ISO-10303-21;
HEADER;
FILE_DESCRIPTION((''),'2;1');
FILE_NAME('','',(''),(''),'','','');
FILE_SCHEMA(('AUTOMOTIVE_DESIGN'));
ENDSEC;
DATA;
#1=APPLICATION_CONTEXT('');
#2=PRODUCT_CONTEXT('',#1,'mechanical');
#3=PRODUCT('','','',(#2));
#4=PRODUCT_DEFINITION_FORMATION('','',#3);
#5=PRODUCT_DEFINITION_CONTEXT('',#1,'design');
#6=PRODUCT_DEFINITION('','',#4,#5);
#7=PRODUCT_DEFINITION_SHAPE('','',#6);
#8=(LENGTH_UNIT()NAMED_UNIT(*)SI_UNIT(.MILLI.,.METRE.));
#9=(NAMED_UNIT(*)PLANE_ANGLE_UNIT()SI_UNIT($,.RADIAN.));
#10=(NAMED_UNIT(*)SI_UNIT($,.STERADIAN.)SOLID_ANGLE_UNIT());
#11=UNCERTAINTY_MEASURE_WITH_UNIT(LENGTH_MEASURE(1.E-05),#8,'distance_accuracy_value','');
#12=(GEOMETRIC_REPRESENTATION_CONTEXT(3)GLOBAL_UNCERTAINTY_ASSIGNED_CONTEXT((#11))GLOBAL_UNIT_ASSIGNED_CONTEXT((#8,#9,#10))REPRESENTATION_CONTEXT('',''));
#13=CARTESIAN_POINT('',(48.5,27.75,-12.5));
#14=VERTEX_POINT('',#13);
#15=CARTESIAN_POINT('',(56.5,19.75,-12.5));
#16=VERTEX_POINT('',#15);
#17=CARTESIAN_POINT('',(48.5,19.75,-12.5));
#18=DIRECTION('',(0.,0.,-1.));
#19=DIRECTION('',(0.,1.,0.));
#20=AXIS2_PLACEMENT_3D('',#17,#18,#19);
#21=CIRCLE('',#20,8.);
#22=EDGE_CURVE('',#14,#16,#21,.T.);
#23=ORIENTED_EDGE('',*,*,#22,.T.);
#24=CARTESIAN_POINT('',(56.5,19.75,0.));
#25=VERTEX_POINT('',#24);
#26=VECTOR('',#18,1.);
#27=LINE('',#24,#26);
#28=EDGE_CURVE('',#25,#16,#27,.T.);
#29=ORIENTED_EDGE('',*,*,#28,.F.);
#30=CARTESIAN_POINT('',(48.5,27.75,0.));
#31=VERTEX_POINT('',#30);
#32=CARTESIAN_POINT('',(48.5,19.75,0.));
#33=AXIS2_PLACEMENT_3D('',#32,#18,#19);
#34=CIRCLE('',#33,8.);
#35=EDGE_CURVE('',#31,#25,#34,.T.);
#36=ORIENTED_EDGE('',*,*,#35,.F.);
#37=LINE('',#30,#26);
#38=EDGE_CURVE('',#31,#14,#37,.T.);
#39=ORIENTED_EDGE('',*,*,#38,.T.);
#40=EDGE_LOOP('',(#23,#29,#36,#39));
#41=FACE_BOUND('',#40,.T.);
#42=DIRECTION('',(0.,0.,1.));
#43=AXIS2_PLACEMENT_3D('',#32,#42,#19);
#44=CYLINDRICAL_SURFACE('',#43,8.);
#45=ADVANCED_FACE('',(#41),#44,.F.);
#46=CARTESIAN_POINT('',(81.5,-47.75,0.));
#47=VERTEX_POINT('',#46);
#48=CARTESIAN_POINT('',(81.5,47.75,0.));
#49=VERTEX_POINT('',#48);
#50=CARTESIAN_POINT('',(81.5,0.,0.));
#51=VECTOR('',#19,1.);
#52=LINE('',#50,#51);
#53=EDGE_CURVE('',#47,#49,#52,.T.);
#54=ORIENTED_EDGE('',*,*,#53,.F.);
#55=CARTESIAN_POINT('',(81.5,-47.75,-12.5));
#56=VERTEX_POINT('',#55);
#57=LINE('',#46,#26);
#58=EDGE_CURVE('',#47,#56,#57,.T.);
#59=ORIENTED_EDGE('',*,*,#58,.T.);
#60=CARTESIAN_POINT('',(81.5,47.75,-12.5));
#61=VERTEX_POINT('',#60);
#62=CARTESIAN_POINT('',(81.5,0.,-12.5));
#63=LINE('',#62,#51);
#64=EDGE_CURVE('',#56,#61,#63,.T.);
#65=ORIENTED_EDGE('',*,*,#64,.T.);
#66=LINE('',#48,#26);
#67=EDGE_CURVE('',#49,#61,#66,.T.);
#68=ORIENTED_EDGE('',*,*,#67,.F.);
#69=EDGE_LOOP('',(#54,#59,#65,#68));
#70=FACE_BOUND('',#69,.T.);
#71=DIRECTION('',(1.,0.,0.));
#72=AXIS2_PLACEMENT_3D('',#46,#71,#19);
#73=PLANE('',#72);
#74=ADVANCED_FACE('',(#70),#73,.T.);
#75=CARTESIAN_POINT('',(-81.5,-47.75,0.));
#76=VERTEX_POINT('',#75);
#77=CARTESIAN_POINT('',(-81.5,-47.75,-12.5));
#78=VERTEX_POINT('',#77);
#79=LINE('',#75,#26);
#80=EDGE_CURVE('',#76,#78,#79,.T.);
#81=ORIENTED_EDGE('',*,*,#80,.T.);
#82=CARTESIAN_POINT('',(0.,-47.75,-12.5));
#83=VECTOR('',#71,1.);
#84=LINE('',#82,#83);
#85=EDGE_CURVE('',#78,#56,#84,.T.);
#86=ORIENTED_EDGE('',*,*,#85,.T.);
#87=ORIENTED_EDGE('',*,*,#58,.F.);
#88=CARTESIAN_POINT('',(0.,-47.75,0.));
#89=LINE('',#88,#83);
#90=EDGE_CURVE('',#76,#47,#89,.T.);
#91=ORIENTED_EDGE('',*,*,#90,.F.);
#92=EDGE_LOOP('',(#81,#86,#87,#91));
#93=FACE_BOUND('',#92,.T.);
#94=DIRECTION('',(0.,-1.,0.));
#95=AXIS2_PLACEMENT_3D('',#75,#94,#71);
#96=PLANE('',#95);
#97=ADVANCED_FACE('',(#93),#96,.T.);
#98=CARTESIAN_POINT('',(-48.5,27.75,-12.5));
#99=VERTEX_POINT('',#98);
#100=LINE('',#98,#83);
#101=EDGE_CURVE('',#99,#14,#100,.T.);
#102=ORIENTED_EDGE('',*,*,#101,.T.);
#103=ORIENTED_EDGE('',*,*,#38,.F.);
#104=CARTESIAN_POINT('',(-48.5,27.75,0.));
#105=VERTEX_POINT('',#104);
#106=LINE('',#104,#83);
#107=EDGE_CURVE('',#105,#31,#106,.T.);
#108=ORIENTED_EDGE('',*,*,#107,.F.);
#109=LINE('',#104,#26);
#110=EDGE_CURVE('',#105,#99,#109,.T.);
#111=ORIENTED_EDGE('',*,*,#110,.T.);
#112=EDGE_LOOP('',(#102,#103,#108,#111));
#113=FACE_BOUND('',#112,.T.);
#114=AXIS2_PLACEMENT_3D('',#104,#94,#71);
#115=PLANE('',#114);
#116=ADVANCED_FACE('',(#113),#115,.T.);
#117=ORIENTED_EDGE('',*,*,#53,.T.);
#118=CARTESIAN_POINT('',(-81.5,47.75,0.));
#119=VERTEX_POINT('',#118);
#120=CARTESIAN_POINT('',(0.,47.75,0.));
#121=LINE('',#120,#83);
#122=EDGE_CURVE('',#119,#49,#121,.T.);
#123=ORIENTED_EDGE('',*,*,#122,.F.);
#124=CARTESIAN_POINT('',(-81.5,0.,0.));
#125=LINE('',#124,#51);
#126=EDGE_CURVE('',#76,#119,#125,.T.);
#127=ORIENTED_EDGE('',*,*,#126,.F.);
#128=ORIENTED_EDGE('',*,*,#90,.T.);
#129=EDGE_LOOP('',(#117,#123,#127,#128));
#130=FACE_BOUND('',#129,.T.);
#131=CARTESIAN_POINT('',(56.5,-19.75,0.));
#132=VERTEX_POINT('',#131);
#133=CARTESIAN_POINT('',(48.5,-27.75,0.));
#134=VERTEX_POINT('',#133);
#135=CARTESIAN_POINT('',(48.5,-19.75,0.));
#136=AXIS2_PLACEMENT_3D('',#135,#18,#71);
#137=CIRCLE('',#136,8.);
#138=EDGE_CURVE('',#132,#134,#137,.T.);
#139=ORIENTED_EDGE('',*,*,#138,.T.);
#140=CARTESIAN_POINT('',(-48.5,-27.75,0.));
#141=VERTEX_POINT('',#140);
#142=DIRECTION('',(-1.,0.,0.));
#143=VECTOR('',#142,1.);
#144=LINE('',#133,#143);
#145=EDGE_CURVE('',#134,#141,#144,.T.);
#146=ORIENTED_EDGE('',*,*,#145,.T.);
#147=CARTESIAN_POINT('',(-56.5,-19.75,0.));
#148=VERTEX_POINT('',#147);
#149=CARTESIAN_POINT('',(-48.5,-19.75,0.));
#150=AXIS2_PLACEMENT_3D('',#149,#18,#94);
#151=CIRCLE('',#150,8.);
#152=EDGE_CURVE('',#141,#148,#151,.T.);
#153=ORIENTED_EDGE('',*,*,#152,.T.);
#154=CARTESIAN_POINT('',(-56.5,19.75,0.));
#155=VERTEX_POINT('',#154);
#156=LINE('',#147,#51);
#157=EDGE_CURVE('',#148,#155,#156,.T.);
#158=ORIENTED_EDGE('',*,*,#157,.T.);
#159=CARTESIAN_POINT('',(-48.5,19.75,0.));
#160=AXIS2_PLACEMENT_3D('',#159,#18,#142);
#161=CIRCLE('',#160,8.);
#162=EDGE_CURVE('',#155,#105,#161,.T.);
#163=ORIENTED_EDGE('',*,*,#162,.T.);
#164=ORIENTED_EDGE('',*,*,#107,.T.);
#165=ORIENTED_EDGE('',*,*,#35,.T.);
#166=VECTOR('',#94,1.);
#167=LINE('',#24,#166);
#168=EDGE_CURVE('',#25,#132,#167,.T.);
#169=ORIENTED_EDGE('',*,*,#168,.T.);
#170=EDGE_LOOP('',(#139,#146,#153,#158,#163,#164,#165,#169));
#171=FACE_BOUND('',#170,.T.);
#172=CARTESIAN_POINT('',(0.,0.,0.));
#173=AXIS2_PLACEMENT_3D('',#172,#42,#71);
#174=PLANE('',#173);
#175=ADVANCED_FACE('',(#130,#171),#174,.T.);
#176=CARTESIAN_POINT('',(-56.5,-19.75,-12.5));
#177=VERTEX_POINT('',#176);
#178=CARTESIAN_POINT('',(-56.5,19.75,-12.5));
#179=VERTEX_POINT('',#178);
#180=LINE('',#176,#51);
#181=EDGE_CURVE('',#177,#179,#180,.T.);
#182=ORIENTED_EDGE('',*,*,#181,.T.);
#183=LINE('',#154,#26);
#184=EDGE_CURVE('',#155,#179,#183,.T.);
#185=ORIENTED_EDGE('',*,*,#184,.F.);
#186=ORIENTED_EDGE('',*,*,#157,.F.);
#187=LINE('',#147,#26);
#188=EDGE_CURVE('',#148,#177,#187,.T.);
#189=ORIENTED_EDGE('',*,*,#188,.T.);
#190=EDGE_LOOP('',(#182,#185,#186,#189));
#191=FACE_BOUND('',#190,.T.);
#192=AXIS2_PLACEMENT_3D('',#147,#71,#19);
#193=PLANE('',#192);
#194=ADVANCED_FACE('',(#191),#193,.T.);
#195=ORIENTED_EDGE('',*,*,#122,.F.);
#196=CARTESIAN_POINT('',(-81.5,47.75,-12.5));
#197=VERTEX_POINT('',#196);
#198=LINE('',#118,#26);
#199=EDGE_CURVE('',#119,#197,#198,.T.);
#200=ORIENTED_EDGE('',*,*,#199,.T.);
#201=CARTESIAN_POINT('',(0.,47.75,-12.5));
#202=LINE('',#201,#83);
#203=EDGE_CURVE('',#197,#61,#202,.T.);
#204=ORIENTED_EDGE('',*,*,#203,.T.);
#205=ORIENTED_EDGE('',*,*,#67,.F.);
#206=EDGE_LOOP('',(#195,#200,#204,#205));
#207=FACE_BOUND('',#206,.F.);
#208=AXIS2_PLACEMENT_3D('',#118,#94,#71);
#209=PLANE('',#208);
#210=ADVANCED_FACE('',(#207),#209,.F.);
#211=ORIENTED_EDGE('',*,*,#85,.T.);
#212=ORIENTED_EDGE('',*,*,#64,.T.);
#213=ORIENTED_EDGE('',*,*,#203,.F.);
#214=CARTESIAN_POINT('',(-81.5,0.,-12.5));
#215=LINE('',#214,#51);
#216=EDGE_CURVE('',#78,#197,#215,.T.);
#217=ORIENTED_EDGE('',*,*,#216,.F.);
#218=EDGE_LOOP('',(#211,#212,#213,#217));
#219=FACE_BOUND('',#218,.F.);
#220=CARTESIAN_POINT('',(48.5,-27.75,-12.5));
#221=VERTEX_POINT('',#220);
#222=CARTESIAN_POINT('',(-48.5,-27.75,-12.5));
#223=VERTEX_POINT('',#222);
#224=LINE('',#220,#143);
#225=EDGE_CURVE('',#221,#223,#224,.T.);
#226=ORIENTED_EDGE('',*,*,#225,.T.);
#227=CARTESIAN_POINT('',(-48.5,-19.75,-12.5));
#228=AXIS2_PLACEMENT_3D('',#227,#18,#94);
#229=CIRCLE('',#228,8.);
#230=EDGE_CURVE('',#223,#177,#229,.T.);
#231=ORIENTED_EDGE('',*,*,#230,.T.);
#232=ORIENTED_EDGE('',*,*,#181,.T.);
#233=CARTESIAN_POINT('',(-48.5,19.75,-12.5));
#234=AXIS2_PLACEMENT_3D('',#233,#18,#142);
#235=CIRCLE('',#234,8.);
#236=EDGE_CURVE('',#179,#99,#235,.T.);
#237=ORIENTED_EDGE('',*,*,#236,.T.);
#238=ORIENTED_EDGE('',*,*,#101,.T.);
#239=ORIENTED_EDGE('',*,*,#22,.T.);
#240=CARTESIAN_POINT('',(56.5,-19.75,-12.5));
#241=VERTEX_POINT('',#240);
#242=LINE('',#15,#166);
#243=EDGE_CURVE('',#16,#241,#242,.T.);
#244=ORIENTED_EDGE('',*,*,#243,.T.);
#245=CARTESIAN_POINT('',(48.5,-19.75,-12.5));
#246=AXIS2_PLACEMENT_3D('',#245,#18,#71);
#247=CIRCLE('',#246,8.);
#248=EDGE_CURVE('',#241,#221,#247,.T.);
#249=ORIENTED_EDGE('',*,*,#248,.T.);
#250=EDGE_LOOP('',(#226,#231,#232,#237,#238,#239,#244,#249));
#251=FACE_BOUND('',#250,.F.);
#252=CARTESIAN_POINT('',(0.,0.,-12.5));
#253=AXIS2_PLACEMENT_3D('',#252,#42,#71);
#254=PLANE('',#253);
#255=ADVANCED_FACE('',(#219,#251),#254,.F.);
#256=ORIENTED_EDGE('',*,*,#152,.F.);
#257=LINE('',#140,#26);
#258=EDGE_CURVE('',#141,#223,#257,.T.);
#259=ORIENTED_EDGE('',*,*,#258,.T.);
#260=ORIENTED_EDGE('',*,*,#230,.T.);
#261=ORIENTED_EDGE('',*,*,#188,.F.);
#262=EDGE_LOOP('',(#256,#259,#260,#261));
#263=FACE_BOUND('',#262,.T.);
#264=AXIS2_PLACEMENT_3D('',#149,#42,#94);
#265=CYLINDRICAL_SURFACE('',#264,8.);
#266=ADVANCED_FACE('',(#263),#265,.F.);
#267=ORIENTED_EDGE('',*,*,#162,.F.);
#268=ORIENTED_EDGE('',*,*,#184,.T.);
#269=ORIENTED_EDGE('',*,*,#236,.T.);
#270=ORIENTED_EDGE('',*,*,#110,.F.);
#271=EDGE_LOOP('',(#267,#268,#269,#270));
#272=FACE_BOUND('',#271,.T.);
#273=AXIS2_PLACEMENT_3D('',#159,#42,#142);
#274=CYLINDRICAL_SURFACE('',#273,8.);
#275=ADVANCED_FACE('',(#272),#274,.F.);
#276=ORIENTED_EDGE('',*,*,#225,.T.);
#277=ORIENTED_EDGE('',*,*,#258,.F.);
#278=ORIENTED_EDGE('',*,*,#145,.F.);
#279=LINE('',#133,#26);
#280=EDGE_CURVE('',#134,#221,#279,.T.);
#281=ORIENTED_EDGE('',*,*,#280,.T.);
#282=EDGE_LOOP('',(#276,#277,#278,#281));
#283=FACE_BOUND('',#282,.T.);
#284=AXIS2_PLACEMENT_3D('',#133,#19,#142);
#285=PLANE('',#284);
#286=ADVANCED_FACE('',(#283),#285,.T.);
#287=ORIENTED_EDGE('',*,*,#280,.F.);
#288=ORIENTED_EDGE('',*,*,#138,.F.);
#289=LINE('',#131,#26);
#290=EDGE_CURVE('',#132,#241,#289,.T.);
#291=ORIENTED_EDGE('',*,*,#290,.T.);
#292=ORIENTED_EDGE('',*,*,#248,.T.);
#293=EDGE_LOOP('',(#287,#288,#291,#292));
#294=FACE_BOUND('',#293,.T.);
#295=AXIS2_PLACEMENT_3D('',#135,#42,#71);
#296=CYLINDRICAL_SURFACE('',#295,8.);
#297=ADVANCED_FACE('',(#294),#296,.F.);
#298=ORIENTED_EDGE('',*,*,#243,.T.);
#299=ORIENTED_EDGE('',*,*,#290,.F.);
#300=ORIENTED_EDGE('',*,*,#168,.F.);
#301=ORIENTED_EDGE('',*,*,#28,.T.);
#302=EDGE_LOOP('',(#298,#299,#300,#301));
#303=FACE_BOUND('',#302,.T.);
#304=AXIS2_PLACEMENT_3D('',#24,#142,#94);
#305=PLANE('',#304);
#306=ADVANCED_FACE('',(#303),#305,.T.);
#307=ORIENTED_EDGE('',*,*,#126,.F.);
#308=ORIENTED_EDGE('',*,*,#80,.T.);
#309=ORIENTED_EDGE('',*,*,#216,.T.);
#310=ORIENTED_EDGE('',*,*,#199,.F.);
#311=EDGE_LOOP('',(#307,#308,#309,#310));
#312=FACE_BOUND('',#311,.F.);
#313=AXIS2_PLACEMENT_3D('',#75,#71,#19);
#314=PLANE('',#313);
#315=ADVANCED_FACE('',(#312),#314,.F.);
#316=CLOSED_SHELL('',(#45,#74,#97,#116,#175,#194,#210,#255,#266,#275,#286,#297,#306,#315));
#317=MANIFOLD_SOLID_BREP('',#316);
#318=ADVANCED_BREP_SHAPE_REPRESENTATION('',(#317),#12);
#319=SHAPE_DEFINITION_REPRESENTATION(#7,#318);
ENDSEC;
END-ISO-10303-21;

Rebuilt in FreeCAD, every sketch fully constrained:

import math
import FreeCAD as App
import Part
import Sketcher
Q = App.Units.Quantity

doc = App.newDocument("Part")
body = doc.addObject("PartDesign::Body", "Body")

# Sketch on XY plane
sketch1 = body.newObject("Sketcher::SketchObject", "Sketch")
sketch1.AttachmentSupport = (doc.getObject("XY_Plane"), [""])
sketch1.MapMode = "FlatFace"
sketch1.addGeometry(Part.LineSegment(App.Vector(-82, 48, 0), App.Vector(-82, -48, 0)), False)
sketch1.addGeometry(Part.LineSegment(App.Vector(-82, -48, 0), App.Vector(82, -48, 0)), False)
sketch1.addGeometry(Part.LineSegment(App.Vector(82, -48, 0), App.Vector(82, 48, 0)), False)
sketch1.addGeometry(Part.LineSegment(App.Vector(82, 48, 0), App.Vector(-82, 48, 0)), False)
sketch1.addGeometry(Part.LineSegment(App.Vector(-56, -20, 0), App.Vector(-56, 20, 0)), False)
sketch1.addGeometry(Part.ArcOfCircle(Part.Circle(App.Vector(-48, 20, 0), App.Vector(0, 0, 1), 8), math.radians(90), math.radians(180)), False)
sketch1.addGeometry(Part.LineSegment(App.Vector(-48, 28, 0), App.Vector(48, 28, 0)), False)
sketch1.addGeometry(Part.ArcOfCircle(Part.Circle(App.Vector(48, 20, 0), App.Vector(0, 0, 1), 8), math.radians(0), math.radians(90)), False)
sketch1.addGeometry(Part.LineSegment(App.Vector(56, 20, 0), App.Vector(56, -20, 0)), False)
sketch1.addGeometry(Part.ArcOfCircle(Part.Circle(App.Vector(48, -20, 0), App.Vector(0, 0, 1), 8), math.radians(-90), math.radians(0)), False)
sketch1.addGeometry(Part.LineSegment(App.Vector(48, -28, 0), App.Vector(-48, -28, 0)), False)
sketch1.addGeometry(Part.ArcOfCircle(Part.Circle(App.Vector(-48, -20, 0), App.Vector(0, 0, 1), 8), math.radians(180), math.radians(270)), False)
sketch1.addConstraint(Sketcher.Constraint("Coincident", 0, 2, 1, 1))
sketch1.addConstraint(Sketcher.Constraint("Coincident", 1, 2, 2, 1))
sketch1.addConstraint(Sketcher.Constraint("Coincident", 2, 2, 3, 1))
sketch1.addConstraint(Sketcher.Constraint("Coincident", 3, 2, 0, 1))
sketch1.addConstraint(Sketcher.Constraint("Tangent", 4, 2, 5, 2))
sketch1.addConstraint(Sketcher.Constraint("Tangent", 5, 1, 6, 1))
sketch1.addConstraint(Sketcher.Constraint("Tangent", 6, 2, 7, 2))
sketch1.addConstraint(Sketcher.Constraint("Tangent", 7, 1, 8, 1))
sketch1.addConstraint(Sketcher.Constraint("Tangent", 8, 2, 9, 2))
sketch1.addConstraint(Sketcher.Constraint("Tangent", 9, 1, 10, 1))
sketch1.addConstraint(Sketcher.Constraint("Tangent", 10, 2, 11, 2))
sketch1.addConstraint(Sketcher.Constraint("Tangent", 11, 1, 4, 1))
sketch1.addConstraint(Sketcher.Constraint("Vertical", 0))
sketch1.addConstraint(Sketcher.Constraint("Horizontal", 1))
sketch1.addConstraint(Sketcher.Constraint("Vertical", 2))
sketch1.addConstraint(Sketcher.Constraint("Horizontal", 3))
sketch1.addConstraint(Sketcher.Constraint("Vertical", 4))
sketch1.addConstraint(Sketcher.Constraint("Horizontal", 6))
sketch1.addConstraint(Sketcher.Constraint("Vertical", 8))
sketch1.addConstraint(Sketcher.Constraint("Horizontal", 10))
sketch1.addConstraint(Sketcher.Constraint("Equal", 5, 7))
sketch1.addConstraint(Sketcher.Constraint("Equal", 7, 9))
sketch1.addConstraint(Sketcher.Constraint("Equal", 9, 11))
sketch1.addConstraint(Sketcher.Constraint("Symmetric", 5, 3, 9, 3, -1, 1))
sketch1.addConstraint(Sketcher.Constraint("Symmetric", 0, 2, 2, 2, -1, 1))
sketch1.addConstraint(Sketcher.Constraint("Radius", 5, Q("8 mm")))
sketch1.addConstraint(Sketcher.Constraint("DistanceX", 1, 1, 1, 2, Q("163 mm")))
sketch1.addConstraint(Sketcher.Constraint("DistanceX", 6, 1, 6, 2, Q("97 mm")))
sketch1.addConstraint(Sketcher.Constraint("DistanceY", 0, 2, 0, 1, Q("95.5 mm")))
sketch1.addConstraint(Sketcher.Constraint("DistanceY", 4, 1, 4, 2, Q("39.5 mm")))
pad1 = body.newObject("PartDesign::Pad", "Pad")
pad1.Profile = sketch1
pad1.Length = 12.5
pad1.Reversed = True

doc.recompute()
